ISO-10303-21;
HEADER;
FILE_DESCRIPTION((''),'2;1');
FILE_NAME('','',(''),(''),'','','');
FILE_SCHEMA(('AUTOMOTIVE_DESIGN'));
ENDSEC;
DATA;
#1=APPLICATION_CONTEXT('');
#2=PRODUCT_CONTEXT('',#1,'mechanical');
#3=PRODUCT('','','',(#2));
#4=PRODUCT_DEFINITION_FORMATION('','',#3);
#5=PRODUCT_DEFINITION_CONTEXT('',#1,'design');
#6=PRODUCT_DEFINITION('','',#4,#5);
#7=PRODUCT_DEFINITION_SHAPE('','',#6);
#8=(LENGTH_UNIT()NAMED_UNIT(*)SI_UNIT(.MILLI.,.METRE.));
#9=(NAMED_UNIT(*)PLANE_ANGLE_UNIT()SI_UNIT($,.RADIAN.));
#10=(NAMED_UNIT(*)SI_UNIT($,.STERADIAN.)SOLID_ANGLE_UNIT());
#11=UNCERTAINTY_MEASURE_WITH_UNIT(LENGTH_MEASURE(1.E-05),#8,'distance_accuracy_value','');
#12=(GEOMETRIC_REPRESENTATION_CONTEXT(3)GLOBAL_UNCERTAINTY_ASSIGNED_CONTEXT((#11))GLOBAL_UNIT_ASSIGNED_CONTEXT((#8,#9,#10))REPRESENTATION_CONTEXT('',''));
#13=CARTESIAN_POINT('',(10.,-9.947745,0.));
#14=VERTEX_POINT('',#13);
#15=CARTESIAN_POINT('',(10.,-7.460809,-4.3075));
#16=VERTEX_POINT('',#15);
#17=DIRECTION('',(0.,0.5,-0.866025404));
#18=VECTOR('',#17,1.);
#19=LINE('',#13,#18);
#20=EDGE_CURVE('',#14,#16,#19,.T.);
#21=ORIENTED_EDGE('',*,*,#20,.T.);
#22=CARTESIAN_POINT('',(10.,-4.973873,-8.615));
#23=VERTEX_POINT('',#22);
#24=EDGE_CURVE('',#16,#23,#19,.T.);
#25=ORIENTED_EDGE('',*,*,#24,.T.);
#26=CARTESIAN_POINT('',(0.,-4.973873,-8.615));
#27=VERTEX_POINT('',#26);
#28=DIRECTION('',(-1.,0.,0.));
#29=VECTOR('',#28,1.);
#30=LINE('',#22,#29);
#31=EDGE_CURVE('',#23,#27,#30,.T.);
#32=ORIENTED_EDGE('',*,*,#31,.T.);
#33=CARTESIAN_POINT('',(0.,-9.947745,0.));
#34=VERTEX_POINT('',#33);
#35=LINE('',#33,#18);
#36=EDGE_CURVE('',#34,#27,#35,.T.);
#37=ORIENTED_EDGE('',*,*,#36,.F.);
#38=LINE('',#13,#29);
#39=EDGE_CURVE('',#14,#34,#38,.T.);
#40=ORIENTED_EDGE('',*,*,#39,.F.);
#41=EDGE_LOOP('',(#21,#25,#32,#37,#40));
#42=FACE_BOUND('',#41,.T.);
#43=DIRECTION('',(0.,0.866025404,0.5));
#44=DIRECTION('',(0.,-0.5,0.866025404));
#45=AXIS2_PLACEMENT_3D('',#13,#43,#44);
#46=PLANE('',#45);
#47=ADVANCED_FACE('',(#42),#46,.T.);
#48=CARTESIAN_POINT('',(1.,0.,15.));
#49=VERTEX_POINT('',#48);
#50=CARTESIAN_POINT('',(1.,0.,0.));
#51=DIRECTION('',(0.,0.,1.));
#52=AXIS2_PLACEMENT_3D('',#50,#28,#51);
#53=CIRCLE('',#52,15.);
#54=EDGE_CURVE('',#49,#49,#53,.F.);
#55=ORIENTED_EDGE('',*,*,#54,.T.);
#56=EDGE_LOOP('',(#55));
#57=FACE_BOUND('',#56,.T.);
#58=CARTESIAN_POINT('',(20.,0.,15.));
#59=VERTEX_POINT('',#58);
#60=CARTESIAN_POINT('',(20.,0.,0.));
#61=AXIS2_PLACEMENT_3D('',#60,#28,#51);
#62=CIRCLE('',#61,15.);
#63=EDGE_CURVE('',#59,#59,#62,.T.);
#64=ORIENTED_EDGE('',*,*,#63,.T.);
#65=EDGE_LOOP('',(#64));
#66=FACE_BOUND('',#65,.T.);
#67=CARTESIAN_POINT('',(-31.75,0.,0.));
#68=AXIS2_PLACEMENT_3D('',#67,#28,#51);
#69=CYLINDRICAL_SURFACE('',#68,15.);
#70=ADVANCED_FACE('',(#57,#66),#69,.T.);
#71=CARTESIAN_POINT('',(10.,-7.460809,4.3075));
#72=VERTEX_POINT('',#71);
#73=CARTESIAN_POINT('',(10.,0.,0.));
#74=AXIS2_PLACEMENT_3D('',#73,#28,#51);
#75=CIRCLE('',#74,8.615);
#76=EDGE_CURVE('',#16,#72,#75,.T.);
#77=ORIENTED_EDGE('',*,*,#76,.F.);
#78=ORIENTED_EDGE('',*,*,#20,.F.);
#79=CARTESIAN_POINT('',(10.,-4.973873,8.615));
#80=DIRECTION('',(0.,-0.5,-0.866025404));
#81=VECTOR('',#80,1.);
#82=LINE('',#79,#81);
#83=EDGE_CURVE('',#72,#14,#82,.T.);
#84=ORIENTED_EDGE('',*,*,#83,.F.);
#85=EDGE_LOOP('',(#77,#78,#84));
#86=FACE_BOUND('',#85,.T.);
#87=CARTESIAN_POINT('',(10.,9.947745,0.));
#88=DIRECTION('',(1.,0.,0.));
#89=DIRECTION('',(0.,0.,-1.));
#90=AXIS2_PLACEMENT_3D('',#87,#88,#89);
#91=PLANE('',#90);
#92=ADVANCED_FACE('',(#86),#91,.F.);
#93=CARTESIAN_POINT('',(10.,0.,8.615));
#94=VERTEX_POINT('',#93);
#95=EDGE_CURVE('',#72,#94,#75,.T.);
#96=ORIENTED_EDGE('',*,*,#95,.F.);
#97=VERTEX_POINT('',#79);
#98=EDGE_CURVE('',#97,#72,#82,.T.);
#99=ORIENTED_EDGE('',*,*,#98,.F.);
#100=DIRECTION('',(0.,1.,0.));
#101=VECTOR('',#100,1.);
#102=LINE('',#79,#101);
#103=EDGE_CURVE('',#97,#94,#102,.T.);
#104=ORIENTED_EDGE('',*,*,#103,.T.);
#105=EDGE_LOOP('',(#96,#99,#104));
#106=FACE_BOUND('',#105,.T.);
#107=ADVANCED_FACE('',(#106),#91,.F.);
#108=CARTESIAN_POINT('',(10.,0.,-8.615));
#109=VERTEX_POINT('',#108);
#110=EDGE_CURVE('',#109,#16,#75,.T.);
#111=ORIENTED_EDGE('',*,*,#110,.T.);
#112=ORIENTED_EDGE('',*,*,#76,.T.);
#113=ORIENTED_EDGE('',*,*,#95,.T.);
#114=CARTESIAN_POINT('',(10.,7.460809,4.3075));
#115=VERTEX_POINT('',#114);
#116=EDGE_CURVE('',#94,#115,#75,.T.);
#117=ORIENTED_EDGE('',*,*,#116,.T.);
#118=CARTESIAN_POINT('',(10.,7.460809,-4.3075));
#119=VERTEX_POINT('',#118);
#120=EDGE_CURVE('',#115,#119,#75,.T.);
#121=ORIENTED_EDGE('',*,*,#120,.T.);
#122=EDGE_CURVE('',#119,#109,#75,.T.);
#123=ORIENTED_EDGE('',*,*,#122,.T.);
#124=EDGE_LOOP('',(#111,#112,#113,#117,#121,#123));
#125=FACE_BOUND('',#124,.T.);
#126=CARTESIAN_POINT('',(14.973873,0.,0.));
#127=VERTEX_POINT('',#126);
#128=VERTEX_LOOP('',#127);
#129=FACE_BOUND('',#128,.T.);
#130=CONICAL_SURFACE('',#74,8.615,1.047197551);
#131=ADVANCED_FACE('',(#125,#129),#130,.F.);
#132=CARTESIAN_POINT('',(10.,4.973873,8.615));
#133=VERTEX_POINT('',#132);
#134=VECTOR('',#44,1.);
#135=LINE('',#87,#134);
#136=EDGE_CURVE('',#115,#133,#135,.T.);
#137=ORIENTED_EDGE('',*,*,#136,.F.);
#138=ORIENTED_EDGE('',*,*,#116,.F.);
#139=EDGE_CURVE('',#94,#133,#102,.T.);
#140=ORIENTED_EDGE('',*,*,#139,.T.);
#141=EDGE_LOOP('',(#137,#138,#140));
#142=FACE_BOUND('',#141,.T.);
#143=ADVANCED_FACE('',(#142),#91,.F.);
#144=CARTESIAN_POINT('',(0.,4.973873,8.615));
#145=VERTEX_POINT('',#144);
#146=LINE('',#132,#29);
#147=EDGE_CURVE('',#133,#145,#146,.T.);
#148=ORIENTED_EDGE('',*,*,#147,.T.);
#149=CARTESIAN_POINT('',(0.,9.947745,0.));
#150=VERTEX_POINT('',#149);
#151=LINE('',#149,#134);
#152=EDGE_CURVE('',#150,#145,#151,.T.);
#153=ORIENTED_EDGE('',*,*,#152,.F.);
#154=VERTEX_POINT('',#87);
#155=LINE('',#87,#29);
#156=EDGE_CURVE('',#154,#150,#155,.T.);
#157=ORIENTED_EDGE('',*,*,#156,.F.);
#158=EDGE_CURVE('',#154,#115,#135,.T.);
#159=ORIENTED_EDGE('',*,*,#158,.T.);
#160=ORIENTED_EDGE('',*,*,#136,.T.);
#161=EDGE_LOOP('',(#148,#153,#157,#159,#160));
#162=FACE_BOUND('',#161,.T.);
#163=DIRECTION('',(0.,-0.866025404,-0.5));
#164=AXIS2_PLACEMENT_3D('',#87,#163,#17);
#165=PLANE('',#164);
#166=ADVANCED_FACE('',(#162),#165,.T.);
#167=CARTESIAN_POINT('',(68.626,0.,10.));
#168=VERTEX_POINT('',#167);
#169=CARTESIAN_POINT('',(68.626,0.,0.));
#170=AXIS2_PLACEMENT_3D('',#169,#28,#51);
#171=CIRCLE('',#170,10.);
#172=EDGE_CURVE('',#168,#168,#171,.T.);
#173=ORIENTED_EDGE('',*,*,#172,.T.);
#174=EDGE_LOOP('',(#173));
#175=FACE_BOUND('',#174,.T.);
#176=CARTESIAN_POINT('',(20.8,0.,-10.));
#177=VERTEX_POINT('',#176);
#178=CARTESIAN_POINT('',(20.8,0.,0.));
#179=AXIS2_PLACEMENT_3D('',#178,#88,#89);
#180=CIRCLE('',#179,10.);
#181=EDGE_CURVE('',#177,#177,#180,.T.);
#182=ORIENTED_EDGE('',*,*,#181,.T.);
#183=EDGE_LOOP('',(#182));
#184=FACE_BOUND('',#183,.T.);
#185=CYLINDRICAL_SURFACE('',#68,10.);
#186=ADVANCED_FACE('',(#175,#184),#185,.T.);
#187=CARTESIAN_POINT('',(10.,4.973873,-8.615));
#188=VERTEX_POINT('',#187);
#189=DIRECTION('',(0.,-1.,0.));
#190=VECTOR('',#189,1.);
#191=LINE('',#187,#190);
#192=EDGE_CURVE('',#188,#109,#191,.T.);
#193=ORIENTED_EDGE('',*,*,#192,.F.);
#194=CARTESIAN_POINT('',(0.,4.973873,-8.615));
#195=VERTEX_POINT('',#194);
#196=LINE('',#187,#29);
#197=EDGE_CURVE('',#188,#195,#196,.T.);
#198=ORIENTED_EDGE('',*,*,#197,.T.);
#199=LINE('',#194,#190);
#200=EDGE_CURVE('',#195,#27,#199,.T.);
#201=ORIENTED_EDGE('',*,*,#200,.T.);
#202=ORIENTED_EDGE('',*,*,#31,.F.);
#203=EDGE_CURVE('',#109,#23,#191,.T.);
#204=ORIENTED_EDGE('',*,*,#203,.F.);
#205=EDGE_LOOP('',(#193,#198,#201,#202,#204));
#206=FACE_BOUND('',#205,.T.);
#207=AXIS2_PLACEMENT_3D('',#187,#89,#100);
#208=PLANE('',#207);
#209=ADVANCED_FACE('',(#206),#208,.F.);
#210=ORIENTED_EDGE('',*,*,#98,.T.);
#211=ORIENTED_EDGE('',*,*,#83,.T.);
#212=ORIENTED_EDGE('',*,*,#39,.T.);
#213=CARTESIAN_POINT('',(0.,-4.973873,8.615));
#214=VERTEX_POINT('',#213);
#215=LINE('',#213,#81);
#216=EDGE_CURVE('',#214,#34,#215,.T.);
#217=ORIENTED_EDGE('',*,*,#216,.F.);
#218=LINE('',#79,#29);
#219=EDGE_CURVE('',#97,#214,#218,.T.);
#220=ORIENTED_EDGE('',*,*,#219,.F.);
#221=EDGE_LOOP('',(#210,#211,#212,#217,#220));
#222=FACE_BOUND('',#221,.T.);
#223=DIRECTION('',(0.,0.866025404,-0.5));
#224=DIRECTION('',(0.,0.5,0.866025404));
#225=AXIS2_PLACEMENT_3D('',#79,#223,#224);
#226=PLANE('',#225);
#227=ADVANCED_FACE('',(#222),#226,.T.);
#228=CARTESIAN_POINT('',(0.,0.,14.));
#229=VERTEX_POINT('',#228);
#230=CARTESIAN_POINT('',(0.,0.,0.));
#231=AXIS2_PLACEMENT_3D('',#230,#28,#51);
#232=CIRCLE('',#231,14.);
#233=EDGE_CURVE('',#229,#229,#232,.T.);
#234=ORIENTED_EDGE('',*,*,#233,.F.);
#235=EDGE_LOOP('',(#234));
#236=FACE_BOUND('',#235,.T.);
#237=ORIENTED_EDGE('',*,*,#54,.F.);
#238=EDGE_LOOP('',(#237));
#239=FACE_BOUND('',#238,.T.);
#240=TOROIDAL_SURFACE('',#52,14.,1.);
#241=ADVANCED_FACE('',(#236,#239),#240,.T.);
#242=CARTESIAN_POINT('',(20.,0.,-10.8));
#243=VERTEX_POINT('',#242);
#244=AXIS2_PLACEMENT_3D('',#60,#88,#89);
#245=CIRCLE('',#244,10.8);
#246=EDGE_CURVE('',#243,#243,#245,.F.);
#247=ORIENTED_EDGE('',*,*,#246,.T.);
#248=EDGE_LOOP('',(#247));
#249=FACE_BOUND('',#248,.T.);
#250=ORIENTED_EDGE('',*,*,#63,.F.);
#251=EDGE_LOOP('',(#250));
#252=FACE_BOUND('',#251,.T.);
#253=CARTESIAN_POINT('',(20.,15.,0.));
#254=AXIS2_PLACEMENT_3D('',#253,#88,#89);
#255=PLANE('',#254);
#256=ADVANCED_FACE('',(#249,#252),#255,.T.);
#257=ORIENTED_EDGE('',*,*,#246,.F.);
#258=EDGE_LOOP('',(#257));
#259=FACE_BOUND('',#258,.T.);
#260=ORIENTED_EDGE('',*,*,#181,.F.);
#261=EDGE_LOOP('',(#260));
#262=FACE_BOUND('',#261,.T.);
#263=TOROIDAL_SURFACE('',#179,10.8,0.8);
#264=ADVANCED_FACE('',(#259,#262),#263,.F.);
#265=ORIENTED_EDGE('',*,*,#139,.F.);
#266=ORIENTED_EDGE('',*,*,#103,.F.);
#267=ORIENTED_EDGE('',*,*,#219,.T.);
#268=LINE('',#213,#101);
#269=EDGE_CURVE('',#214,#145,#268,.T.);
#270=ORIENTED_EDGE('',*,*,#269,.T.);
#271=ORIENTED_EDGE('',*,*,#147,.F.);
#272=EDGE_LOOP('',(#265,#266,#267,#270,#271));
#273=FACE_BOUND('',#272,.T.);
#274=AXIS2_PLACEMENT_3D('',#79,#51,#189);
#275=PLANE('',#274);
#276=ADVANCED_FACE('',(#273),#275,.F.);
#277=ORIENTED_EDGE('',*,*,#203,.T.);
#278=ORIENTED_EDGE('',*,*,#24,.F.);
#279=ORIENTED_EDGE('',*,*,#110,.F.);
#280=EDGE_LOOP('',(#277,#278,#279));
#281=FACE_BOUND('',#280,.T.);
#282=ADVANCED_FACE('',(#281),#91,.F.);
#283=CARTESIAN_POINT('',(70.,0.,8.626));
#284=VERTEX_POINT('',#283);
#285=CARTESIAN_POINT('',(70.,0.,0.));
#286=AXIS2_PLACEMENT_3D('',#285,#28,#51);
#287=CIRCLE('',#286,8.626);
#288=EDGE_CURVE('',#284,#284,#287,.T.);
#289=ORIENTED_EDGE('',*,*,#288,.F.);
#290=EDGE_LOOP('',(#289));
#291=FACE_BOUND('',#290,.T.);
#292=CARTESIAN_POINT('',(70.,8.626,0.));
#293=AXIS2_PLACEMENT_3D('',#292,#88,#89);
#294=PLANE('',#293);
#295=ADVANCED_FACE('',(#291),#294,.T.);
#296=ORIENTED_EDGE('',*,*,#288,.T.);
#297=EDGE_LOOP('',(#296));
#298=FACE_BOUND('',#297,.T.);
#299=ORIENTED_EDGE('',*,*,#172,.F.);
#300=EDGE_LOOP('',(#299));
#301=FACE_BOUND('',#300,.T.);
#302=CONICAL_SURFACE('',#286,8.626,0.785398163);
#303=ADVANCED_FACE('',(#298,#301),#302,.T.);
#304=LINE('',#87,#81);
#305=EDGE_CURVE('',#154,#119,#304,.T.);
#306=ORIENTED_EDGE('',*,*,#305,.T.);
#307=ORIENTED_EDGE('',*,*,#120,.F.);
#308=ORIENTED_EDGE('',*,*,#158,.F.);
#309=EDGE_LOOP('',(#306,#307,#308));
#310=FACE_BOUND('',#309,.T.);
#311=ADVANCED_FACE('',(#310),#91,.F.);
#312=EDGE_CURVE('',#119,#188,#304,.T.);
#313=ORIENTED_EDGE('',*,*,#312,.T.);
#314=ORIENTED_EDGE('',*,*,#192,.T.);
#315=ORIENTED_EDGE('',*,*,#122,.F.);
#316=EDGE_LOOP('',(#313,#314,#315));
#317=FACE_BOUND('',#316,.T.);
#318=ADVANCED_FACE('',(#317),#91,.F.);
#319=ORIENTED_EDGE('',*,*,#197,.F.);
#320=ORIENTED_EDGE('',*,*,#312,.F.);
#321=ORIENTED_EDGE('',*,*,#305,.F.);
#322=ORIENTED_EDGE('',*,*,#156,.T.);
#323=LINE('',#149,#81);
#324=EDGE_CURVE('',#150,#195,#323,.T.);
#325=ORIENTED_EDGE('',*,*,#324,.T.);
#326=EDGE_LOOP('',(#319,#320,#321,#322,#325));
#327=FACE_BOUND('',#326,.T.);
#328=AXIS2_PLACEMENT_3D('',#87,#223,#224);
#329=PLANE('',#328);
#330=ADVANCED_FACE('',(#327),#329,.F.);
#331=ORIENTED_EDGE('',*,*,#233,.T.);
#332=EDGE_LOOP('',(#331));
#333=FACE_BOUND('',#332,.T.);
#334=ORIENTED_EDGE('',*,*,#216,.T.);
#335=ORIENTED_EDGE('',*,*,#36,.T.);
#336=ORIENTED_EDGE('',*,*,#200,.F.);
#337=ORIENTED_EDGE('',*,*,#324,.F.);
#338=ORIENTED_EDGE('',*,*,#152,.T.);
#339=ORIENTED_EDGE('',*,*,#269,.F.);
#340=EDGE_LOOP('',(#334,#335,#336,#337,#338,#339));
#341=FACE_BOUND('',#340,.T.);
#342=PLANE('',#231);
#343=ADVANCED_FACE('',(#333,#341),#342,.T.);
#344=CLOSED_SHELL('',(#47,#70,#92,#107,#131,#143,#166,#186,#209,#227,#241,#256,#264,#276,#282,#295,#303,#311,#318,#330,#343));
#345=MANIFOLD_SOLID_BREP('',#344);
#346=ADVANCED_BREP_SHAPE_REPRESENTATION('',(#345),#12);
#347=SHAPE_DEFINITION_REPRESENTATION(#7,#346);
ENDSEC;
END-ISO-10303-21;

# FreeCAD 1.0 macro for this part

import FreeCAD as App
import Part
import Sketcher
from FreeCAD import Vector
Q = App.Units.Quantity


def edges_at(feature, points):
    """Names of the edges that pass closest to the given points."""
    edges = feature.Shape.Edges
    near = lambda p: min(range(len(edges)), key=lambda i: edges[i].distToShape(Part.Vertex(*p))[0])
    return sorted({f"Edge{near(p) + 1}" for p in points})

doc = App.newDocument("Part")
body = doc.addObject("PartDesign::Body", "Body")

# Sketch on XY plane
sketch1 = doc.addObject("Sketcher::SketchObject", "Sketch")
body.addObject(sketch1)
sketch1.AttachmentSupport = (doc.XY_Plane, [""])
sketch1.MapMode = "FlatFace"
sketch1.addGeometry(Part.LineSegment(Vector(0, 15, 0), Vector(0, 0, 0)), False)
sketch1.addGeometry(Part.LineSegment(Vector(0, 0, 0), Vector(70, 0, 0)), False)
sketch1.addGeometry(Part.LineSegment(Vector(70, 0, 0), Vector(70, 8.6, 0)), False)
sketch1.addGeometry(Part.LineSegment(Vector(70, 8.6, 0), Vector(68.6, 10, 0)), False)
sketch1.addGeometry(Part.LineSegment(Vector(68.6, 10, 0), Vector(20, 10, 0)), False)
sketch1.addGeometry(Part.LineSegment(Vector(20, 10, 0), Vector(20, 15, 0)), False)
sketch1.addGeometry(Part.LineSegment(Vector(20, 15, 0), Vector(0, 15, 0)), False)
sketch1.addConstraint(Sketcher.Constraint("Coincident", 0, 2, 1, 1))
sketch1.addConstraint(Sketcher.Constraint("Coincident", 1, 2, 2, 1))
sketch1.addConstraint(Sketcher.Constraint("Coincident", 2, 2, 3, 1))
sketch1.addConstraint(Sketcher.Constraint("Coincident", 3, 2, 4, 1))
sketch1.addConstraint(Sketcher.Constraint("Coincident", 4, 2, 5, 1))
sketch1.addConstraint(Sketcher.Constraint("Coincident", 5, 2, 6, 1))
sketch1.addConstraint(Sketcher.Constraint("Coincident", 6, 2, 0, 1))
sketch1.addConstraint(Sketcher.Constraint("Vertical", 0))
sketch1.addConstraint(Sketcher.Constraint("Horizontal", 1))
sketch1.addConstraint(Sketcher.Constraint("Vertical", 2))
sketch1.addConstraint(Sketcher.Constraint("Horizontal", 4))
sketch1.addConstraint(Sketcher.Constraint("Vertical", 5))
sketch1.addConstraint(Sketcher.Constraint("Horizontal", 6))
sketch1.addConstraint(Sketcher.Constraint("Coincident", 0, 2, -1, 1))
sketch1.addConstraint(Sketcher.Constraint("DistanceX", 1, 1, 1, 2, Q("70 mm")))
sketch1.addConstraint(Sketcher.Constraint("DistanceX", 6, 2, 6, 1, Q("20 mm")))
sketch1.addConstraint(Sketcher.Constraint("DistanceY", 0, 2, 0, 1, Q("15 mm")))
sketch1.addConstraint(Sketcher.Constraint("DistanceY", 5, 1, 5, 2, Q("5 mm")))
sketch1.addConstraint(Sketcher.Constraint("Angle", 3, Q("135 deg")))
sketch1.addConstraint(Sketcher.Constraint("DistanceX", 4, 2, 4, 1, Q("48.626 mm")))
revolution = doc.addObject("PartDesign::Revolution", "Revolution")
body.addObject(revolution)
revolution.Profile = sketch1
revolution.ReferenceAxis = (sketch1, ["H_Axis"])
revolution.Angle = 360
doc.recompute()

fillet = doc.addObject("PartDesign::Fillet", "Fillet")
body.addObject(fillet)
fillet.Base = (revolution, edges_at(revolution, [(20, -10, 0)]))
fillet.Radius = 0.8
doc.recompute()

fillet2 = doc.addObject("PartDesign::Fillet", "Fillet001")
body.addObject(fillet2)
fillet2.Base = (fillet, edges_at(fillet, [(0, -15, 0)]))
fillet2.Radius = 1

# Sketch on XY plane
sketch2 = doc.addObject("Sketcher::SketchObject", "Sketch001")
body.addObject(sketch2)
sketch2.AttachmentSupport = (doc.XY_Plane, [""])
sketch2.MapMode = "FlatFace"
sketch2.addGeometry(Part.LineSegment(Vector(10, 9, 0), Vector(0, 9, 0)), False)
sketch2.addGeometry(Part.LineSegment(Vector(0, 9, 0), Vector(0, 0, 0)), False)
sketch2.addGeometry(Part.LineSegment(Vector(0, 0, 0), Vector(15, 0, 0)), False)
sketch2.addGeometry(Part.LineSegment(Vector(15, 0, 0), Vector(10, 9, 0)), False)
sketch2.addConstraint(Sketcher.Constraint("Coincident", 0, 2, 1, 1))
sketch2.addConstraint(Sketcher.Constraint("Coincident", 1, 2, 2, 1))
sketch2.addConstraint(Sketcher.Constraint("Coincident", 2, 2, 3, 1))
sketch2.addConstraint(Sketcher.Constraint("Coincident", 3, 2, 0, 1))
sketch2.addConstraint(Sketcher.Constraint("Horizontal", 0))
sketch2.addConstraint(Sketcher.Constraint("Vertical", 1))
sketch2.addConstraint(Sketcher.Constraint("Horizontal", 2))
sketch2.addConstraint(Sketcher.Constraint("Coincident", 1, 2, -1, 1))
sketch2.addConstraint(Sketcher.Constraint("DistanceX", 0, 2, 0, 1, Q("10 mm")))
sketch2.addConstraint(Sketcher.Constraint("Angle", 3, Q("120 deg")))
sketch2.addConstraint(Sketcher.Constraint("DistanceY", 1, 2, 1, 1, Q("8.615 mm")))
groove = doc.addObject("PartDesign::Groove", "Groove")
body.addObject(groove)
groove.Profile = sketch2
groove.ReferenceAxis = (sketch2, ["H_Axis"])
groove.Angle = 360

# Sketch on YZ plane
sketch3 = doc.addObject("Sketcher::SketchObject", "Sketch002")
body.addObject(sketch3)
sketch3.AttachmentSupport = (doc.YZ_Plane, [""])
sketch3.MapMode = "FlatFace"
sketch3.addGeometry(Part.LineSegment(Vector(10, 0, 0), Vector(5, -9, 0)), False)
sketch3.addGeometry(Part.LineSegment(Vector(5, -9, 0), Vector(-5, -9, 0)), False)
sketch3.addGeometry(Part.LineSegment(Vector(-5, -9, 0), Vector(-10, 0, 0)), False)
sketch3.addGeometry(Part.LineSegment(Vector(-10, 0, 0), Vector(-5, 9, 0)), False)
sketch3.addGeometry(Part.LineSegment(Vector(-5, 9, 0), Vector(5, 9, 0)), False)
sketch3.addGeometry(Part.LineSegment(Vector(5, 9, 0), Vector(10, 0, 0)), False)
sketch3.addConstraint(Sketcher.Constraint("Coincident", 0, 2, 1, 1))
sketch3.addConstraint(Sketcher.Constraint("Coincident", 1, 2, 2, 1))
sketch3.addConstraint(Sketcher.Constraint("Coincident", 2, 2, 3, 1))
sketch3.addConstraint(Sketcher.Constraint("Coincident", 3, 2, 4, 1))
sketch3.addConstraint(Sketcher.Constraint("Coincident", 4, 2, 5, 1))
sketch3.addConstraint(Sketcher.Constraint("Coincident", 5, 2, 0, 1))
sketch3.addConstraint(Sketcher.Constraint("Horizontal", 1))
sketch3.addConstraint(Sketcher.Constraint("Horizontal", 4))
sketch3.addConstraint(Sketcher.Constraint("Symmetric", 0, 2, 3, 2, -1, 1))
sketch3.addConstraint(Sketcher.Constraint("Symmetric", 2, 2, 5, 2, -1, 1))
sketch3.addConstraint(Sketcher.Constraint("PointOnObject", 2, 2, -1))
sketch3.addConstraint(Sketcher.Constraint("Parallel", 2, 5))
sketch3.addConstraint(Sketcher.Constraint("Vertical", 1, 2, 3, 2))
sketch3.addConstraint(Sketcher.Constraint("Angle", 0, Q("-120 deg")))
sketch3.addConstraint(Sketcher.Constraint("DistanceY", 1, 2, 3, 2, Q("17.23 mm")))
sketch3.addConstraint(Sketcher.Constraint("DistanceX", 1, 2, 1, 1, Q("9.947745 mm")))
pocket1 = doc.addObject("PartDesign::Pocket", "Pocket")
body.addObject(pocket1)
pocket1.Profile = sketch3
pocket1.Length = 10
pocket1.Reversed = True

doc.recompute()
